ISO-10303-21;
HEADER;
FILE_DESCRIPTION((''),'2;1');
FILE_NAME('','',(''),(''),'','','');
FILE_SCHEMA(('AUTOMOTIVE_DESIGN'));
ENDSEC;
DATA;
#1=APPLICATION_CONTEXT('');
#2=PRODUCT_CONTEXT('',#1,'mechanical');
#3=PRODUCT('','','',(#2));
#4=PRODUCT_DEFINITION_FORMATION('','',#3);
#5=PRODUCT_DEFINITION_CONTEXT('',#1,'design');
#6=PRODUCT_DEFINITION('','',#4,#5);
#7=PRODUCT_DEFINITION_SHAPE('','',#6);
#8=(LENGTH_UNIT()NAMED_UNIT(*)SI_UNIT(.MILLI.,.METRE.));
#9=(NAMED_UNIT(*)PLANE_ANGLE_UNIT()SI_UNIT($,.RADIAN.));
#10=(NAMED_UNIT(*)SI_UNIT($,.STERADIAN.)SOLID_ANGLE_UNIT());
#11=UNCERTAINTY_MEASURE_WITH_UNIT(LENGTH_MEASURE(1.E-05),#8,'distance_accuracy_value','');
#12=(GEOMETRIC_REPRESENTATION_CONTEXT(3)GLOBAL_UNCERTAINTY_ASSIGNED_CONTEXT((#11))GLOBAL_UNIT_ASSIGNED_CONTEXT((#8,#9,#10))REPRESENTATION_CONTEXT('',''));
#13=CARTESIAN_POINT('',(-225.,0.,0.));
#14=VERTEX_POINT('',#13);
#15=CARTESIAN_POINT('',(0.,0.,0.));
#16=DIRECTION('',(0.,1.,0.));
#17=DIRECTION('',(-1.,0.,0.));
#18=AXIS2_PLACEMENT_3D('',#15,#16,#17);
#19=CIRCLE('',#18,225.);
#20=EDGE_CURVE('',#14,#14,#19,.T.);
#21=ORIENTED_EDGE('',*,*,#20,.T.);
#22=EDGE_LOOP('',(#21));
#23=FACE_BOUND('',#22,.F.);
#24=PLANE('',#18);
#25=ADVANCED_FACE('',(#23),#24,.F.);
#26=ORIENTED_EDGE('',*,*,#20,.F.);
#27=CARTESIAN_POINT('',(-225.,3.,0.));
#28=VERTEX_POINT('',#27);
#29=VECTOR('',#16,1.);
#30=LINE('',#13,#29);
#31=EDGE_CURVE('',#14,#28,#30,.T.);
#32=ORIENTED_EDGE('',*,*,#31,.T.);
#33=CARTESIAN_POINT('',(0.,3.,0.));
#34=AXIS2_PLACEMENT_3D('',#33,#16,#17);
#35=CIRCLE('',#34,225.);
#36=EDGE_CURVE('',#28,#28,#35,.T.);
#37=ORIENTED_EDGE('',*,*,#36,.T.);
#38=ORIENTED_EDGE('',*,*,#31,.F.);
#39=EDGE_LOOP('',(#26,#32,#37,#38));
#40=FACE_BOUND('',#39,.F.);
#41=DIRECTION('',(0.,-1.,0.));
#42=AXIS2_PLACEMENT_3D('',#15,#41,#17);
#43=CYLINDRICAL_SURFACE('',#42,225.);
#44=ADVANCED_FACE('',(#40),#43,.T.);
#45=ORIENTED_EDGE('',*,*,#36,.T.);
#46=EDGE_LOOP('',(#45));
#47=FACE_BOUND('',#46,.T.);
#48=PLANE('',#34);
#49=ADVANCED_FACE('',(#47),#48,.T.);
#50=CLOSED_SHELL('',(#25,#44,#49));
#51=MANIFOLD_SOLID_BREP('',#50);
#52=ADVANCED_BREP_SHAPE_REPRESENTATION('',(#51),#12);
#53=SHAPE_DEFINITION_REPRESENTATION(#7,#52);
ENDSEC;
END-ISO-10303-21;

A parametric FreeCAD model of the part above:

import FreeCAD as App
import Part
import Sketcher

doc = App.newDocument("Part")
body = doc.addObject("PartDesign::Body", "Body")

sketch1 = body.newObject("Sketcher::SketchObject", "Sketch")
sketch1.AttachmentSupport = (doc.getObject("XZ_Plane"), [""])
sketch1.MapMode = "FlatFace"
sketch1.addGeometry(Part.Circle(App.Vector(0, 0, 0), App.Vector(0, 0, 1), 225), False)
sketch1.addConstraint(Sketcher.Constraint("Coincident", 0, 3, -1, 1))
sketch1.addConstraint(Sketcher.Constraint("Diameter", 0, 450.0))
pad1 = body.newObject("PartDesign::Pad", "Pad")
pad1.Profile = sketch1
pad1.Length = 3
pad1.Reversed = True

doc.recompute()
